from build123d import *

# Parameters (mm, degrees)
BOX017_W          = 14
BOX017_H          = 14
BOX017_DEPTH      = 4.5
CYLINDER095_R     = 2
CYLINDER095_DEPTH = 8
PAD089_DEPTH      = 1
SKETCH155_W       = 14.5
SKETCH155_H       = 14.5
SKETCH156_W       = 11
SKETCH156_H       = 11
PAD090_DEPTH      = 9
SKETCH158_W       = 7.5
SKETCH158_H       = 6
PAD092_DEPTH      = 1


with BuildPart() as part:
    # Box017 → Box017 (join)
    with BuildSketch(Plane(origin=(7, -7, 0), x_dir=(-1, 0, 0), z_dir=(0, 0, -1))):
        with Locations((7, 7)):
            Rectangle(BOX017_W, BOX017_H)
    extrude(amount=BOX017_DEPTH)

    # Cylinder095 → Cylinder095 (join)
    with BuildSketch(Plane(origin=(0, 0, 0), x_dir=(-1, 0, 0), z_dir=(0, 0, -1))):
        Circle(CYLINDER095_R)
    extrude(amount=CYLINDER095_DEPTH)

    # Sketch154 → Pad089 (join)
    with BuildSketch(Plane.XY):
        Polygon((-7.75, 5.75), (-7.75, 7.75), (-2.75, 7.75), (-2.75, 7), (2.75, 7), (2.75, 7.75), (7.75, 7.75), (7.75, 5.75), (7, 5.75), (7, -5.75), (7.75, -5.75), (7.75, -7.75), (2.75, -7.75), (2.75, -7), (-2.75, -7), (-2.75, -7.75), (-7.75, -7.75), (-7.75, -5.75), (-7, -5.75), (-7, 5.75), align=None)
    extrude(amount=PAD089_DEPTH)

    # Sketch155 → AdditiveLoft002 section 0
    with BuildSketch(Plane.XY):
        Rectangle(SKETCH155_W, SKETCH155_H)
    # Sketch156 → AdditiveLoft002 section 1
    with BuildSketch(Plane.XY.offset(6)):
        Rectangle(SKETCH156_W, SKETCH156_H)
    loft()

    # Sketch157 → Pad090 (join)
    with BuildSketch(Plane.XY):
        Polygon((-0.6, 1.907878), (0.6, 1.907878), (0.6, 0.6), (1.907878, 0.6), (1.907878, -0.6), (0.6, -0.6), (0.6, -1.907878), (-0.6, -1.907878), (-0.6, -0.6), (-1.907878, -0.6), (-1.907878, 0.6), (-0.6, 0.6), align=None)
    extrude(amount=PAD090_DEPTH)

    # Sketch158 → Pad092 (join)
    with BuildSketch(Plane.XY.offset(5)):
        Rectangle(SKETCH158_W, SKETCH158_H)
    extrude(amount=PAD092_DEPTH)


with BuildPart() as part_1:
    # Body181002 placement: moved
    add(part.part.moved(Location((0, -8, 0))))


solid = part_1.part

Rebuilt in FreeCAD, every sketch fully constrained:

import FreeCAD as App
import Part
import Sketcher

V = App.Vector
Q = App.Units.Quantity

doc = App.newDocument("Part")
params = doc.addObject("Spreadsheet::Sheet", "Params")
for row, (alias, value) in enumerate([
    ("sketch1_width", "14 mm"),
    ("pad1_length", "4.5 mm"),
    ("sketch2_diameter", "4 mm"),
    ("pad2_length", "8 mm"),
    ("sketch3_width", "5 mm"),
    ("sketch3_height", "2 mm"),
    ("sketch3_width2", "5.5 mm"),
    ("sketch3_height2", "11.5 mm"),
    ("pad3_length", "1 mm"),
    ("sketch4_width", "14.5 mm"),
    ("sketch5_width", "11 mm"),
    ("sketch6_width", "1.2 mm"),
    ("pad4_length", "9 mm"),
    ("sketch7_height", "6 mm"),
    ("sketch7_width", "7.5 mm"),
    ("pad5_length", "1 mm"),
], start=1):
    params.set(f"A{row}", alias)
    params.set(f"B{row}", "=" + value)
    params.setAlias(f"B{row}", alias)

body = doc.addObject("PartDesign::Body", "Body")

sketch1 = body.newObject("Sketcher::SketchObject", "Sketch")
sketch1.AttachmentSupport = (doc.getObject("XY_Plane"), [""])
sketch1.MapMode = "FlatFace"
sketch1.addGeometry(Part.LineSegment(V(7, 7, 0), V(7, -7, 0)), False)
sketch1.addGeometry(Part.LineSegment(V(7, -7, 0), V(-7, -7, 0)), False)
sketch1.addGeometry(Part.LineSegment(V(-7, -7, 0), V(-7, 7, 0)), False)
sketch1.addGeometry(Part.LineSegment(V(-7, 7, 0), V(7, 7, 0)), False)
sketch1.addConstraint(Sketcher.Constraint("Coincident", 0, 2, 1, 1))
sketch1.addConstraint(Sketcher.Constraint("Coincident", 1, 2, 2, 1))
sketch1.addConstraint(Sketcher.Constraint("Coincident", 2, 2, 3, 1))
sketch1.addConstraint(Sketcher.Constraint("Coincident", 3, 2, 0, 1))
sketch1.addConstraint(Sketcher.Constraint("Vertical", 0))
sketch1.addConstraint(Sketcher.Constraint("Horizontal", 1))
sketch1.addConstraint(Sketcher.Constraint("Vertical", 2))
sketch1.addConstraint(Sketcher.Constraint("Horizontal", 3))
sketch1.addConstraint(Sketcher.Constraint("Symmetric", 0, 2, 2, 2, -1, 1))
sketch1.addConstraint(Sketcher.Constraint("Equal", 3, 0))
sketch1.addConstraint(Sketcher.Constraint("DistanceX", 1, 2, 1, 1, Q("14 mm")))
sketch1.setExpression("Constraints[10]", "Params.sketch1_width")
pad1 = body.newObject("PartDesign::Pad", "Pad")
pad1.Profile = sketch1
pad1.setExpression("Length", "Params.pad1_length")
pad1.Reversed = True

sketch2 = body.newObject("Sketcher::SketchObject", "Sketch001")
sketch2.AttachmentSupport = (doc.getObject("XY_Plane"), [""])
sketch2.MapMode = "FlatFace"
sketch2.addGeometry(Part.Circle(V(0, 0, 0), V(0, 0, 1), 2), False)
sketch2.addConstraint(Sketcher.Constraint("Coincident", 0, 3, -1, 1))
sketch2.addConstraint(Sketcher.Constraint("Diameter", 0, Q("4 mm")))
sketch2.setExpression("Constraints[1]", "Params.sketch2_diameter")
pad2 = body.newObject("PartDesign::Pad", "Pad001")
pad2.Profile = sketch2
pad2.setExpression("Length", "Params.pad2_length")
pad2.Reversed = True

sketch3 = body.newObject("Sketcher::SketchObject", "Sketch002")
sketch3.AttachmentSupport = (doc.getObject("XY_Plane"), [""])
sketch3.MapMode = "FlatFace"
sketch3.addGeometry(Part.LineSegment(V(-7.75, 7.75, 0), V(-7.75, 5.75, 0)), False)
sketch3.addGeometry(Part.LineSegment(V(-7.75, 5.75, 0), V(-7, 5.75, 0)), False)
sketch3.addGeometry(Part.LineSegment(V(-7, 5.75, 0), V(-7, -5.75, 0)), False)
sketch3.addGeometry(Part.LineSegment(V(-7, -5.75, 0), V(-7.75, -5.75, 0)), False)
sketch3.addGeometry(Part.LineSegment(V(-7.75, -5.75, 0), V(-7.75, -7.75, 0)), False)
sketch3.addGeometry(Part.LineSegment(V(-7.75, -7.75, 0), V(-2.75, -7.75, 0)), False)
sketch3.addGeometry(Part.LineSegment(V(-2.75, -7.75, 0), V(-2.75, -7, 0)), False)
sketch3.addGeometry(Part.LineSegment(V(-2.75, -7, 0), V(2.75, -7, 0)), False)
sketch3.addGeometry(Part.LineSegment(V(2.75, -7, 0), V(2.75, -7.75, 0)), False)
sketch3.addGeometry(Part.LineSegment(V(2.75, -7.75, 0), V(7.75, -7.75, 0)), False)
sketch3.addGeometry(Part.LineSegment(V(7.75, -7.75, 0), V(7.75, -5.75, 0)), False)
sketch3.addGeometry(Part.LineSegment(V(7.75, -5.75, 0), V(7, -5.75, 0)), False)
sketch3.addGeometry(Part.LineSegment(V(7, -5.75, 0), V(7, 5.75, 0)), False)
sketch3.addGeometry(Part.LineSegment(V(7, 5.75, 0), V(7.75, 5.75, 0)), False)
sketch3.addGeometry(Part.LineSegment(V(7.75, 5.75, 0), V(7.75, 7.75, 0)), False)
sketch3.addGeometry(Part.LineSegment(V(7.75, 7.75, 0), V(2.75, 7.75, 0)), False)
sketch3.addGeometry(Part.LineSegment(V(2.75, 7.75, 0), V(2.75, 7, 0)), False)
sketch3.addGeometry(Part.LineSegment(V(2.75, 7, 0), V(-2.75, 7, 0)), False)
sketch3.addGeometry(Part.LineSegment(V(-2.75, 7, 0), V(-2.75, 7.75, 0)), False)
sketch3.addGeometry(Part.LineSegment(V(-2.75, 7.75, 0), V(-7.75, 7.75, 0)), False)
sketch3.addConstraint(Sketcher.Constraint("Coincident", 0, 2, 1, 1))
sketch3.addConstraint(Sketcher.Constraint("Coincident", 1, 2, 2, 1))
sketch3.addConstraint(Sketcher.Constraint("Coincident", 2, 2, 3, 1))
sketch3.addConstraint(Sketcher.Constraint("Coincident", 3, 2, 4, 1))
sketch3.addConstraint(Sketcher.Constraint("Coincident", 4, 2, 5, 1))
sketch3.addConstraint(Sketcher.Constraint("Coincident", 5, 2, 6, 1))
sketch3.addConstraint(Sketcher.Constraint("Coincident", 6, 2, 7, 1))
sketch3.addConstraint(Sketcher.Constraint("Coincident", 7, 2, 8, 1))
sketch3.addConstraint(Sketcher.Constraint("Coincident", 8, 2, 9, 1))
sketch3.addConstraint(Sketcher.Constraint("Coincident", 9, 2, 10, 1))
sketch3.addConstraint(Sketcher.Constraint("Coincident", 10, 2, 11, 1))
sketch3.addConstraint(Sketcher.Constraint("Coincident", 11, 2, 12, 1))
sketch3.addConstraint(Sketcher.Constraint("Coincident", 12, 2, 13, 1))
sketch3.addConstraint(Sketcher.Constraint("Coincident", 13, 2, 14, 1))
sketch3.addConstraint(Sketcher.Constraint("Coincident", 14, 2, 15, 1))
sketch3.addConstraint(Sketcher.Constraint("Coincident", 15, 2, 16, 1))
sketch3.addConstraint(Sketcher.Constraint("Coincident", 16, 2, 17, 1))
sketch3.addConstraint(Sketcher.Constraint("Coincident", 17, 2, 18, 1))
sketch3.addConstraint(Sketcher.Constraint("Coincident", 18, 2, 19, 1))
sketch3.addConstraint(Sketcher.Constraint("Coincident", 19, 2, 0, 1))
sketch3.addConstraint(Sketcher.Constraint("Vertical", 0))
sketch3.addConstraint(Sketcher.Constraint("Horizontal", 1))
sketch3.addConstraint(Sketcher.Constraint("Vertical", 2))
sketch3.addConstraint(Sketcher.Constraint("Horizontal", 3))
sketch3.addConstraint(Sketcher.Constraint("Vertical", 4))
sketch3.addConstraint(Sketcher.Constraint("Horizontal", 5))
sketch3.addConstraint(Sketcher.Constraint("Vertical", 6))
sketch3.addConstraint(Sketcher.Constraint("Horizontal", 7))
sketch3.addConstraint(Sketcher.Constraint("Vertical", 8))
sketch3.addConstraint(Sketcher.Constraint("Horizontal", 9))
sketch3.addConstraint(Sketcher.Constraint("Vertical", 10))
sketch3.addConstraint(Sketcher.Constraint("Horizontal", 11))
sketch3.addConstraint(Sketcher.Constraint("Vertical", 12))
sketch3.addConstraint(Sketcher.Constraint("Horizontal", 13))
sketch3.addConstraint(Sketcher.Constraint("Vertical", 14))
sketch3.addConstraint(Sketcher.Constraint("Horizontal", 15))
sketch3.addConstraint(Sketcher.Constraint("Vertical", 16))
sketch3.addConstraint(Sketcher.Constraint("Horizontal", 17))
sketch3.addConstraint(Sketcher.Constraint("Vertical", 18))
sketch3.addConstraint(Sketcher.Constraint("Horizontal", 19))
sketch3.addConstraint(Sketcher.Constraint("Symmetric", 0, 2, 10, 2, -1, 1))
sketch3.addConstraint(Sketcher.Constraint("Symmetric", 2, 2, 12, 2, -1, 1))
sketch3.addConstraint(Sketcher.Constraint("Symmetric", 4, 2, 14, 2, -1, 1))
sketch3.addConstraint(Sketcher.Constraint("Symmetric", 6, 2, 16, 2, -1, 1))
sketch3.addConstraint(Sketcher.Constraint("Symmetric", 8, 2, 18, 2, -1, 1))
sketch3.addConstraint(Sketcher.Constraint("Symmetric", 5, 2, 8, 2, -2))
sketch3.addConstraint(Sketcher.Constraint("Symmetric", 3, 2, 10, 2, -2))
sketch3.addConstraint(Sketcher.Constraint("Equal", 13, 6))
sketch3.addConstraint(Sketcher.Constraint("DistanceX", 5, 1, 5, 2, Q("5 mm")))
sketch3.addConstraint(Sketcher.Constraint("DistanceY", 0, 2, 0, 1, Q("2 mm")))
sketch3.addConstraint(Sketcher.Constraint("DistanceX", 7, 1, 7, 2, Q("5.5 mm")))
sketch3.addConstraint(Sketcher.Constraint("DistanceY", 2, 2, 2, 1, Q("11.5 mm")))
sketch3.addConstraint(Sketcher.Constraint("DistanceX", 1, 2, -1, 1, Q("7 mm")))
sketch3.setExpression("Constraints[48]", "Params.sketch3_width")
sketch3.setExpression("Constraints[49]", "Params.sketch3_height")
sketch3.setExpression("Constraints[50]", "Params.sketch3_width2")
sketch3.setExpression("Constraints[51]", "Params.sketch3_height2")
pad3 = body.newObject("PartDesign::Pad", "Pad002")
pad3.Profile = sketch3
pad3.setExpression("Length", "Params.pad3_length")

sketch4 = body.newObject("Sketcher::SketchObject", "Sketch003")
sketch4.AttachmentSupport = (doc.getObject("XY_Plane"), [""])
sketch4.MapMode = "FlatFace"
sketch4.addGeometry(Part.LineSegment(V(-7.25, 7.25, 0), V(-7.25, -7.25, 0)), False)
sketch4.addGeometry(Part.LineSegment(V(-7.25, -7.25, 0), V(7.25, -7.25, 0)), False)
sketch4.addGeometry(Part.LineSegment(V(7.25, -7.25, 0), V(7.25, 7.25, 0)), False)
sketch4.addGeometry(Part.LineSegment(V(7.25, 7.25, 0), V(-7.25, 7.25, 0)), False)
sketch4.addConstraint(Sketcher.Constraint("Coincident", 0, 2, 1, 1))
sketch4.addConstraint(Sketcher.Constraint("Coincident", 1, 2, 2, 1))
sketch4.addConstraint(Sketcher.Constraint("Coincident", 2, 2, 3, 1))
sketch4.addConstraint(Sketcher.Constraint("Coincident", 3, 2, 0, 1))
sketch4.addConstraint(Sketcher.Constraint("Vertical", 0))
sketch4.addConstraint(Sketcher.Constraint("Horizontal", 1))
sketch4.addConstraint(Sketcher.Constraint("Vertical", 2))
sketch4.addConstraint(Sketcher.Constraint("Horizontal", 3))
sketch4.addConstraint(Sketcher.Constraint("Symmetric", 0, 2, 2, 2, -1, 1))
sketch4.addConstraint(Sketcher.Constraint("Equal", 3, 0))
sketch4.addConstraint(Sketcher.Constraint("DistanceX", 1, 1, 1, 2, Q("14.5 mm")))
sketch4.setExpression("Constraints[10]", "Params.sketch4_width")

sketch5 = body.newObject("Sketcher::SketchObject", "Sketch004")
sketch5.AttachmentSupport = (doc.getObject("XY_Plane"), [""])
sketch5.MapMode = "FlatFace"
sketch5.AttachmentOffset = App.Placement(V(0, 0, 6), App.Rotation())
sketch5.addGeometry(Part.LineSegment(V(-5.5, 5.5, 0), V(-5.5, -5.5, 0)), False)
sketch5.addGeometry(Part.LineSegment(V(-5.5, -5.5, 0), V(5.5, -5.5, 0)), False)
sketch5.addGeometry(Part.LineSegment(V(5.5, -5.5, 0), V(5.5, 5.5, 0)), False)
sketch5.addGeometry(Part.LineSegment(V(5.5, 5.5, 0), V(-5.5, 5.5, 0)), False)
sketch5.addConstraint(Sketcher.Constraint("Coincident", 0, 2, 1, 1))
sketch5.addConstraint(Sketcher.Constraint("Coincident", 1, 2, 2, 1))
sketch5.addConstraint(Sketcher.Constraint("Coincident", 2, 2, 3, 1))
sketch5.addConstraint(Sketcher.Constraint("Coincident", 3, 2, 0, 1))
sketch5.addConstraint(Sketcher.Constraint("Vertical", 0))
sketch5.addConstraint(Sketcher.Constraint("Horizontal", 1))
sketch5.addConstraint(Sketcher.Constraint("Vertical", 2))
sketch5.addConstraint(Sketcher.Constraint("Horizontal", 3))
sketch5.addConstraint(Sketcher.Constraint("Symmetric", 0, 2, 2, 2, -1, 1))
sketch5.addConstraint(Sketcher.Constraint("Equal", 3, 0))
sketch5.addConstraint(Sketcher.Constraint("DistanceX", 1, 1, 1, 2, Q("11 mm")))
sketch5.setExpression("Constraints[10]", "Params.sketch5_width")

additiveloft = body.newObject("PartDesign::AdditiveLoft", "AdditiveLoft")
additiveloft.Profile = sketch4
additiveloft.Sections = [sketch5]

sketch6 = body.newObject("Sketcher::SketchObject", "Sketch005")
sketch6.AttachmentSupport = (doc.getObject("XY_Plane"), [""])
sketch6.MapMode = "FlatFace"
sketch6.addGeometry(Part.LineSegment(V(0.6, 1.907878, 0), V(-0.6, 1.907878, 0)), False)
sketch6.addGeometry(Part.LineSegment(V(-0.6, 1.907878, 0), V(-0.6, 0.6, 0)), False)
sketch6.addGeometry(Part.LineSegment(V(-0.6, 0.6, 0), V(-1.907878, 0.6, 0)), False)
sketch6.addGeometry(Part.LineSegment(V(-1.907878, 0.6, 0), V(-1.907878, -0.6, 0)), False)
sketch6.addGeometry(Part.LineSegment(V(-1.907878, -0.6, 0), V(-0.6, -0.6, 0)), False)
sketch6.addGeometry(Part.LineSegment(V(-0.6, -0.6, 0), V(-0.6, -1.907878, 0)), False)
sketch6.addGeometry(Part.LineSegment(V(-0.6, -1.907878, 0), V(0.6, -1.907878, 0)), False)
sketch6.addGeometry(Part.LineSegment(V(0.6, -1.907878, 0), V(0.6, -0.6, 0)), False)
sketch6.addGeometry(Part.LineSegment(V(0.6, -0.6, 0), V(1.907878, -0.6, 0)), False)
sketch6.addGeometry(Part.LineSegment(V(1.907878, -0.6, 0), V(1.907878, 0.6, 0)), False)
sketch6.addGeometry(Part.LineSegment(V(1.907878, 0.6, 0), V(0.6, 0.6, 0)), False)
sketch6.addGeometry(Part.LineSegment(V(0.6, 0.6, 0), V(0.6, 1.907878, 0)), False)
sketch6.addConstraint(Sketcher.Constraint("Coincident", 0, 2, 1, 1))
sketch6.addConstraint(Sketcher.Constraint("Coincident", 1, 2, 2, 1))
sketch6.addConstraint(Sketcher.Constraint("Coincident", 2, 2, 3, 1))
sketch6.addConstraint(Sketcher.Constraint("Coincident", 3, 2, 4, 1))
sketch6.addConstraint(Sketcher.Constraint("Coincident", 4, 2, 5, 1))
sketch6.addConstraint(Sketcher.Constraint("Coincident", 5, 2, 6, 1))
sketch6.addConstraint(Sketcher.Constraint("Coincident", 6, 2, 7, 1))
sketch6.addConstraint(Sketcher.Constraint("Coincident", 7, 2, 8, 1))
sketch6.addConstraint(Sketcher.Constraint("Coincident", 8, 2, 9, 1))
sketch6.addConstraint(Sketcher.Constraint("Coincident", 9, 2, 10, 1))
sketch6.addConstraint(Sketcher.Constraint("Coincident", 10, 2, 11, 1))
sketch6.addConstraint(Sketcher.Constraint("Coincident", 11, 2, 0, 1))
sketch6.addConstraint(Sketcher.Constraint("Horizontal", 0))
sketch6.addConstraint(Sketcher.Constraint("Vertical", 1))
sketch6.addConstraint(Sketcher.Constraint("Horizontal", 2))
sketch6.addConstraint(Sketcher.Constraint("Vertical", 3))
sketch6.addConstraint(Sketcher.Constraint("Horizontal", 4))
sketch6.addConstraint(Sketcher.Constraint("Vertical", 5))
sketch6.addConstraint(Sketcher.Constraint("Horizontal", 6))
sketch6.addConstraint(Sketcher.Constraint("Vertical", 7))
sketch6.addConstraint(Sketcher.Constraint("Horizontal", 8))
sketch6.addConstraint(Sketcher.Constraint("Vertical", 9))
sketch6.addConstraint(Sketcher.Constraint("Horizontal", 10))
sketch6.addConstraint(Sketcher.Constraint("Vertical", 11))
sketch6.addConstraint(Sketcher.Constraint("Symmetric", 0, 2, 6, 2, -1, 1))
sketch6.addConstraint(Sketcher.Constraint("Symmetric", 2, 2, 8, 2, -1, 1))
sketch6.addConstraint(Sketcher.Constraint("Symmetric", 4, 2, 10, 2, -1, 1))
sketch6.addConstraint(Sketcher.Constraint("Symmetric", 4, 2, 7, 2, -2))
sketch6.addConstraint(Sketcher.Constraint("Equal", 10, 1))
sketch6.addConstraint(Sketcher.Constraint("Equal", 6, 3))
sketch6.addConstraint(Sketcher.Constraint("DistanceX", 0, 2, 0, 1, Q("1.2 mm")))
sketch6.addConstraint(Sketcher.Constraint("DistanceX", 2, 2, 2, 1, Q("1.307878 mm")))
sketch6.setExpression("Constraints[30]", "Params.sketch6_width")
pad4 = body.newObject("PartDesign::Pad", "Pad003")
pad4.Profile = sketch6
pad4.setExpression("Length", "Params.pad4_length")

sketch7 = body.newObject("Sketcher::SketchObject", "Sketch006")
sketch7.AttachmentSupport = (doc.getObject("XY_Plane"), [""])
sketch7.MapMode = "FlatFace"
sketch7.AttachmentOffset = App.Placement(V(0, 0, 5), App.Rotation())
sketch7.addGeometry(Part.LineSegment(V(-3.75, 3, 0), V(-3.75, -3, 0)), False)
sketch7.addGeometry(Part.LineSegment(V(-3.75, -3, 0), V(3.75, -3, 0)), False)
sketch7.addGeometry(Part.LineSegment(V(3.75, -3, 0), V(3.75, 3, 0)), False)
sketch7.addGeometry(Part.LineSegment(V(3.75, 3, 0), V(-3.75, 3, 0)), False)
sketch7.addConstraint(Sketcher.Constraint("Coincident", 0, 2, 1, 1))
sketch7.addConstraint(Sketcher.Constraint("Coincident", 1, 2, 2, 1))
sketch7.addConstraint(Sketcher.Constraint("Coincident", 2, 2, 3, 1))
sketch7.addConstraint(Sketcher.Constraint("Coincident", 3, 2, 0, 1))
sketch7.addConstraint(Sketcher.Constraint("Vertical", 0))
sketch7.addConstraint(Sketcher.Constraint("Horizontal", 1))
sketch7.addConstraint(Sketcher.Constraint("Vertical", 2))
sketch7.addConstraint(Sketcher.Constraint("Horizontal", 3))
sketch7.addConstraint(Sketcher.Constraint("Symmetric", 0, 2, 2, 2, -1, 1))
sketch7.addConstraint(Sketcher.Constraint("DistanceY", 0, 2, 0, 1, Q("6 mm")))
sketch7.addConstraint(Sketcher.Constraint("DistanceX", 1, 1, 1, 2, Q("7.5 mm")))
sketch7.setExpression("Constraints[9]", "Params.sketch7_height")
sketch7.setExpression("Constraints[10]", "Params.sketch7_width")
pad5 = body.newObject("PartDesign::Pad", "Pad004")
pad5.Profile = sketch7
pad5.setExpression("Length", "Params.pad5_length")
body2 = doc.addObject("PartDesign::Body", "Body001")
doc.recompute()

body.Placement = App.Placement(V(0, -8, 0), App.Rotation(V(0, 0, 1), 0))
boolean = body2.newObject("PartDesign::Boolean", "Boolean")
boolean.Type = "Fuse"
boolean.addObjects([body])

doc.recompute()
